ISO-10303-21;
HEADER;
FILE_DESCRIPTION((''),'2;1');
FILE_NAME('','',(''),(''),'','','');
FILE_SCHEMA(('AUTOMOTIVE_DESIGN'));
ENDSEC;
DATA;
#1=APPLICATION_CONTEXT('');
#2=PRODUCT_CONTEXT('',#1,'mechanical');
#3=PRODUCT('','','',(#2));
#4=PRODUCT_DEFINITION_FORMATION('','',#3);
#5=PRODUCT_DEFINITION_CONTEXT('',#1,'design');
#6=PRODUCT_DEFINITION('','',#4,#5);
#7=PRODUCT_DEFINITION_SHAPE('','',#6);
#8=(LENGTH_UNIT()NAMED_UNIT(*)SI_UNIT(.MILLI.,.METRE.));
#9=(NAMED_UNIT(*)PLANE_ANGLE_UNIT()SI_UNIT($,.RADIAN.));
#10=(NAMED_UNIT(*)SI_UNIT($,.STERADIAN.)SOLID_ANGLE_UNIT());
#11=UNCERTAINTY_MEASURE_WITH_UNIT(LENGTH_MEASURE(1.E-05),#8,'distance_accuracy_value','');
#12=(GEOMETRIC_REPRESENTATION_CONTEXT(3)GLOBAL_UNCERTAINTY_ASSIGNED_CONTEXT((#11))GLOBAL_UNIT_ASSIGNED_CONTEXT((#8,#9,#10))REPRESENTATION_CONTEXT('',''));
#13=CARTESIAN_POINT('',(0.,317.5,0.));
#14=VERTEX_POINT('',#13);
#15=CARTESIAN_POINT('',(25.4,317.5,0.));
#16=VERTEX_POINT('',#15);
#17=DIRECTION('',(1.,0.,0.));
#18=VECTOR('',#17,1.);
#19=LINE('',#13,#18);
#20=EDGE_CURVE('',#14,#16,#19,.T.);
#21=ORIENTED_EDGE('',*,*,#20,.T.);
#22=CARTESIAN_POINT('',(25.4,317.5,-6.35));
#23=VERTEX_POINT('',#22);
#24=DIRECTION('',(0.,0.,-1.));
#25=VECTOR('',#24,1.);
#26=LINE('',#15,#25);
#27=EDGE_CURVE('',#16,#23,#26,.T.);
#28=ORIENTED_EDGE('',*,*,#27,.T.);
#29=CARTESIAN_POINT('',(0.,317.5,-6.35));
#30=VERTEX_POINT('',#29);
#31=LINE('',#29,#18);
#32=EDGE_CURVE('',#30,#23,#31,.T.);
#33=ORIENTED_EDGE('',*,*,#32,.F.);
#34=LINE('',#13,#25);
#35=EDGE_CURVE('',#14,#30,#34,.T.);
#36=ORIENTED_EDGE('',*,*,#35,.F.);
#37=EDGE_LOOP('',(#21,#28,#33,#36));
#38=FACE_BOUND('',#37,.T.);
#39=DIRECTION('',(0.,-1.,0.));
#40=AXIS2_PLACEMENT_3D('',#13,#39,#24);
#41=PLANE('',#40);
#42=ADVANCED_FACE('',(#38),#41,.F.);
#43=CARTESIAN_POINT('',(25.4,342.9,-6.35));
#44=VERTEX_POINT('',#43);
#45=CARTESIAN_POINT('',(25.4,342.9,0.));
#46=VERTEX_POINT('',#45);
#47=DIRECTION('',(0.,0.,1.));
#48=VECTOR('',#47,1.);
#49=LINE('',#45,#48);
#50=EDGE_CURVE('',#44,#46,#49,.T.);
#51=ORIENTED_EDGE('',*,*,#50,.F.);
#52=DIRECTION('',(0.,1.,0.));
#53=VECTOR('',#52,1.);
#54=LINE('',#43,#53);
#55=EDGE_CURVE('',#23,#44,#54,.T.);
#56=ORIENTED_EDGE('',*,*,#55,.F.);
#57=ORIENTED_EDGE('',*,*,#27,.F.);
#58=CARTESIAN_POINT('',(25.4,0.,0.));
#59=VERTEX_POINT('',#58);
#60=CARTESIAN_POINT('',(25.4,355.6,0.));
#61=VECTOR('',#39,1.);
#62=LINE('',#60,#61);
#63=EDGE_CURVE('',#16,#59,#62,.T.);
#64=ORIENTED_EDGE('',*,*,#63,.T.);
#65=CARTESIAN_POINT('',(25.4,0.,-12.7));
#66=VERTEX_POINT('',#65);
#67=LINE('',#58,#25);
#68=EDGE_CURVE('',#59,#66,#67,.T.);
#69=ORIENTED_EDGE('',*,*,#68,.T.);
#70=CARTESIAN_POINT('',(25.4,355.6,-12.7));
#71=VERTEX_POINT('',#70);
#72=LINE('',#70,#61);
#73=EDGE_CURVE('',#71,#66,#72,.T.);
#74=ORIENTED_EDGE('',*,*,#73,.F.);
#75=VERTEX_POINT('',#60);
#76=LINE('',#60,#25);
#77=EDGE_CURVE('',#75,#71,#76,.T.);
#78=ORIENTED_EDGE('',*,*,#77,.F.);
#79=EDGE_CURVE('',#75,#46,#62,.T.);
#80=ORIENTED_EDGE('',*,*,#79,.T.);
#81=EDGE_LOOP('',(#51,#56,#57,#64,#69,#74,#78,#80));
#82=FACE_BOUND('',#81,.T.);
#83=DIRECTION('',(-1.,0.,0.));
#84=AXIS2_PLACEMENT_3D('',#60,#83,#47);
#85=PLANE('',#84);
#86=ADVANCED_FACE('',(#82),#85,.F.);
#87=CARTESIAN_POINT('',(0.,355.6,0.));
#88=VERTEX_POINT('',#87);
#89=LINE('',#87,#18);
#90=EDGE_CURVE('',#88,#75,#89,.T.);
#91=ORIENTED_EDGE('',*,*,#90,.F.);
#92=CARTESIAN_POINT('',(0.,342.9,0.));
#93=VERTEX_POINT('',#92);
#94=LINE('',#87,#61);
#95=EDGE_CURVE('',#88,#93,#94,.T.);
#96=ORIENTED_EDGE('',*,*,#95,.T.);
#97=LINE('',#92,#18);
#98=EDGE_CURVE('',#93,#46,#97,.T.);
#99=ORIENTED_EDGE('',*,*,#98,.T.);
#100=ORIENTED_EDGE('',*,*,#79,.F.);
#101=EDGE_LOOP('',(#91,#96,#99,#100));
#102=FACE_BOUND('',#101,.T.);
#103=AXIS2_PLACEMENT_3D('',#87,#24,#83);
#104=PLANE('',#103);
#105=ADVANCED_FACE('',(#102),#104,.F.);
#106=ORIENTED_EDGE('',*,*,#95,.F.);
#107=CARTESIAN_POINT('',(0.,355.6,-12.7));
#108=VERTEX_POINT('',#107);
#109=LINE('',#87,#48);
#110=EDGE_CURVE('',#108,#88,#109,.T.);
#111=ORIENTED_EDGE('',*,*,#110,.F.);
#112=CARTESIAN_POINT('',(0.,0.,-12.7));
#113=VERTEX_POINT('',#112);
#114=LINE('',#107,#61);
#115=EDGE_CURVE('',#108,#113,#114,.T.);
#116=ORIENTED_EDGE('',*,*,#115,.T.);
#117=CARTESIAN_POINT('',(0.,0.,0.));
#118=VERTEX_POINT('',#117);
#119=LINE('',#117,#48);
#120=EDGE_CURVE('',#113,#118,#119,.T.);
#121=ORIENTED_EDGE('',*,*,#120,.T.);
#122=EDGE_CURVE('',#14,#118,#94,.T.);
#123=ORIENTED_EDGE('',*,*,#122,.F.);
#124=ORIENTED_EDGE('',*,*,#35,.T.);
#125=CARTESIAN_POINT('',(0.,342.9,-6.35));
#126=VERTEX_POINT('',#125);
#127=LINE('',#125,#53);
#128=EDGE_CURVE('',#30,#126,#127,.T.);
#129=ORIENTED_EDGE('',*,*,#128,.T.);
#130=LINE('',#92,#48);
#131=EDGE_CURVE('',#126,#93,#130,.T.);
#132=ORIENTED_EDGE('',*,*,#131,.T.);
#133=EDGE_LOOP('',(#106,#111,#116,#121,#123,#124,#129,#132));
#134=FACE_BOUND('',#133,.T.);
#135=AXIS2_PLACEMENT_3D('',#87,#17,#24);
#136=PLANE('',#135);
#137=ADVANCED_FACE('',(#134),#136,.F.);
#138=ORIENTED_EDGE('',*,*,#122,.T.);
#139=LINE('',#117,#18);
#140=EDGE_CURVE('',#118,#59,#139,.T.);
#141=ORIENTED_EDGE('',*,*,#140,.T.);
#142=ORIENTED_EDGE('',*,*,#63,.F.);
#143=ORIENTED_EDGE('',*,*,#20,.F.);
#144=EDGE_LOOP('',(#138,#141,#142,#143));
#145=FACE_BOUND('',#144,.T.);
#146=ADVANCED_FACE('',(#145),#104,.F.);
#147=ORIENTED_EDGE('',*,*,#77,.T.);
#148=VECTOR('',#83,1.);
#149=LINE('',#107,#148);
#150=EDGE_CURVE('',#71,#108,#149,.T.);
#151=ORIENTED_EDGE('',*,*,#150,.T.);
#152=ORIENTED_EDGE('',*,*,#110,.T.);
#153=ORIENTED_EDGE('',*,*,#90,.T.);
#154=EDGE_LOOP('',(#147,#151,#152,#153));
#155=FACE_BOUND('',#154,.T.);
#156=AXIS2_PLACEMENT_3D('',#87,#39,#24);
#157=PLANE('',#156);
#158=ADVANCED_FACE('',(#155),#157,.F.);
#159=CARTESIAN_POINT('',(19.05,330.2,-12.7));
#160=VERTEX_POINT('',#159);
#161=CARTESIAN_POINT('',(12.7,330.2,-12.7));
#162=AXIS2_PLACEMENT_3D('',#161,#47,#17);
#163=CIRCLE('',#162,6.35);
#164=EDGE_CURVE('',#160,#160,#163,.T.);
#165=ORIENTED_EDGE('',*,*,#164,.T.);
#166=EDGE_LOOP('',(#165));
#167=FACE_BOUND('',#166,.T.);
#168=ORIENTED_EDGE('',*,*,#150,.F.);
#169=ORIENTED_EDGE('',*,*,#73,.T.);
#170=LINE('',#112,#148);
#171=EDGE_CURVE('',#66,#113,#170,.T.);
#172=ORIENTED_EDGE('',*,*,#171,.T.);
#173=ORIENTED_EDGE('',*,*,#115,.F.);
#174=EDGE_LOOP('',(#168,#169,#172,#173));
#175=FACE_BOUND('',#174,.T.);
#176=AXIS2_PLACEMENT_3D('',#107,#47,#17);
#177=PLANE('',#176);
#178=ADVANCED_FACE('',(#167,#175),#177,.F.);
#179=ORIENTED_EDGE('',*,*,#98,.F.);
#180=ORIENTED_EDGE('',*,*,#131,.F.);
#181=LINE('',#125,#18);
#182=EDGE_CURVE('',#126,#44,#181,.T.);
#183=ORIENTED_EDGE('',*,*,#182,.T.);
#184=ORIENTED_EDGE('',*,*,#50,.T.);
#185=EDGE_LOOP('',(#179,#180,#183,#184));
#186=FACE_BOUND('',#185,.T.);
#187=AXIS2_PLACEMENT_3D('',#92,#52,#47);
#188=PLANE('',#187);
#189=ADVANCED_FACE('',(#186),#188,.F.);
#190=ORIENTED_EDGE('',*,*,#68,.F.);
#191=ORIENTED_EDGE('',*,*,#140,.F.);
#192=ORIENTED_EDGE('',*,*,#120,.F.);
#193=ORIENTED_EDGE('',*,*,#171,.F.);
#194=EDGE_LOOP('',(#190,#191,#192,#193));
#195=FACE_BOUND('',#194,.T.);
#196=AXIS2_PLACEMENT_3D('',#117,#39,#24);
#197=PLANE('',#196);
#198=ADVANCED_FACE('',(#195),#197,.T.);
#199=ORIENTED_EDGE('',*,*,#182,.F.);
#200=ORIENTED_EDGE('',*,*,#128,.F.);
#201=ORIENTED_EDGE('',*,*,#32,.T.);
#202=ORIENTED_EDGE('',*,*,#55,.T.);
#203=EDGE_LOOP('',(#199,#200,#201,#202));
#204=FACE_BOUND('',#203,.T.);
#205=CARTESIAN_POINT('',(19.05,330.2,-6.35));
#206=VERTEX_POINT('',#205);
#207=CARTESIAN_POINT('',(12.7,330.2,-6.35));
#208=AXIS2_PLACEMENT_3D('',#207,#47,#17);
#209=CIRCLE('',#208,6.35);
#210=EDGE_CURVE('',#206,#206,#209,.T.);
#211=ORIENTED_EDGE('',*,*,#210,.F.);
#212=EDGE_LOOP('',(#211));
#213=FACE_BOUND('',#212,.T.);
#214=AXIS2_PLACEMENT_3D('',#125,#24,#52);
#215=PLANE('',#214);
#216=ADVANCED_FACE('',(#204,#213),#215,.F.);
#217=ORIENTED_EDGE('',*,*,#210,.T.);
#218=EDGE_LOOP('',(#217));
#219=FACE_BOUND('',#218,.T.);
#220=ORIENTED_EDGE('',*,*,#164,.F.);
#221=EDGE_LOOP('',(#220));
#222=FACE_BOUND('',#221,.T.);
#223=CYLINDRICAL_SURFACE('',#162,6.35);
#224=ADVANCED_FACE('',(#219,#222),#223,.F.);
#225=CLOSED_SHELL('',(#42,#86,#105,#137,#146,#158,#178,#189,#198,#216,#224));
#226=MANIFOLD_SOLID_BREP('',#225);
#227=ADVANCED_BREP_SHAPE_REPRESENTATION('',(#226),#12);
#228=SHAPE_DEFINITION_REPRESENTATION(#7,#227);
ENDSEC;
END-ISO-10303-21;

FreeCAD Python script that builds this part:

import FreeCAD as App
import Part
import Sketcher

V = App.Vector
Q = App.Units.Quantity

doc = App.newDocument("Part")
body = doc.addObject("PartDesign::Body", "Body")

sketch1 = doc.addObject("Sketcher::SketchObject", "Sketch")
body.addObject(sketch1)
sketch1.AttachmentSupport = (doc.XZ_Plane, [""])
sketch1.MapMode = "FlatFace"
sketch1.addGeometry(Part.LineSegment(V(0, -13, 0), V(0, 0, 0)), False)
sketch1.addGeometry(Part.LineSegment(V(0, 0, 0), V(25, 0, 0)), False)
sketch1.addGeometry(Part.LineSegment(V(25, 0, 0), V(25, -13, 0)), False)
sketch1.addGeometry(Part.LineSegment(V(25, -13, 0), V(0, -13, 0)), False)
sketch1.addConstraint(Sketcher.Constraint("Coincident", 0, 2, 1, 1))
sketch1.addConstraint(Sketcher.Constraint("Coincident", 1, 2, 2, 1))
sketch1.addConstraint(Sketcher.Constraint("Coincident", 2, 2, 3, 1))
sketch1.addConstraint(Sketcher.Constraint("Coincident", 3, 2, 0, 1))
sketch1.addConstraint(Sketcher.Constraint("Vertical", 0))
sketch1.addConstraint(Sketcher.Constraint("Horizontal", 1))
sketch1.addConstraint(Sketcher.Constraint("Vertical", 2))
sketch1.addConstraint(Sketcher.Constraint("Horizontal", 3))
sketch1.addConstraint(Sketcher.Constraint("Coincident", 0, 2, -1, 1))
sketch1.addConstraint(Sketcher.Constraint("DistanceX", 1, 1, 1, 2, Q("1 in")))
sketch1.addConstraint(Sketcher.Constraint("DistanceY", 0, 1, 0, 2, Q("0.5 in")))
pad1 = doc.addObject("PartDesign::Pad", "Pad")
body.addObject(pad1)
pad1.Profile = sketch1
pad1.Length = Q("14 in")
pad1.Reversed = True

sketch2 = doc.addObject("Sketcher::SketchObject", "Sketch001")
body.addObject(sketch2)
sketch2.AttachmentSupport = (doc.YZ_Plane, [""])
sketch2.MapMode = "FlatFace"
sketch2.AttachmentOffset = App.Placement(V(0, 0, 1 * 25.4), App.Rotation())
sketch2.addGeometry(Part.LineSegment(V(343, 0, 0), V(318, 0, 0)), False)
sketch2.addGeometry(Part.LineSegment(V(318, 0, 0), V(318, -6, 0)), False)
sketch2.addGeometry(Part.LineSegment(V(318, -6, 0), V(343, -6, 0)), False)
sketch2.addGeometry(Part.LineSegment(V(343, -6, 0), V(343, 0, 0)), False)
sketch2.addConstraint(Sketcher.Constraint("Coincident", 0, 2, 1, 1))
sketch2.addConstraint(Sketcher.Constraint("Coincident", 1, 2, 2, 1))
sketch2.addConstraint(Sketcher.Constraint("Coincident", 2, 2, 3, 1))
sketch2.addConstraint(Sketcher.Constraint("Coincident", 3, 2, 0, 1))
sketch2.addConstraint(Sketcher.Constraint("Horizontal", 0))
sketch2.addConstraint(Sketcher.Constraint("Vertical", 1))
sketch2.addConstraint(Sketcher.Constraint("Horizontal", 2))
sketch2.addConstraint(Sketcher.Constraint("Vertical", 3))
sketch2.addConstraint(Sketcher.Constraint("PointOnObject", 0, 2, -1))
sketch2.addConstraint(Sketcher.Constraint("DistanceX", 0, 2, 0, 1, Q("1 in")))
sketch2.addConstraint(Sketcher.Constraint("DistanceY", 1, 2, 1, 1, Q("0.25 in")))
sketch2.addConstraint(Sketcher.Constraint("DistanceX", -1, 1, 0, 2, Q("12.5 in")))
pocket1 = doc.addObject("PartDesign::Pocket", "Pocket")
body.addObject(pocket1)
pocket1.Profile = sketch2
pocket1.Type = "ThroughAll"

sketch3 = doc.addObject("Sketcher::SketchObject", "Sketch002")
body.addObject(sketch3)
sketch3.AttachmentSupport = (doc.XY_Plane, [""])
sketch3.MapMode = "FlatFace"
sketch3.AttachmentOffset = App.Placement(V(0, 0, -0.25 * 25.4), App.Rotation())
sketch3.addGeometry(Part.Circle(V(13, 330, 0), V(0, 0, 1), 6), False)
sketch3.addConstraint(Sketcher.Constraint("Diameter", 0, Q("0.5 in")))
sketch3.addConstraint(Sketcher.Constraint("DistanceY", -1, 1, 0, 3, Q("13 in")))
sketch3.addConstraint(Sketcher.Constraint("DistanceX", -1, 1, 0, 3, Q("0.5 in")))
pocket2 = doc.addObject("PartDesign::Pocket", "Pocket001")
body.addObject(pocket2)
pocket2.Profile = sketch3
pocket2.Type = "ThroughAll"

doc.recompute()
